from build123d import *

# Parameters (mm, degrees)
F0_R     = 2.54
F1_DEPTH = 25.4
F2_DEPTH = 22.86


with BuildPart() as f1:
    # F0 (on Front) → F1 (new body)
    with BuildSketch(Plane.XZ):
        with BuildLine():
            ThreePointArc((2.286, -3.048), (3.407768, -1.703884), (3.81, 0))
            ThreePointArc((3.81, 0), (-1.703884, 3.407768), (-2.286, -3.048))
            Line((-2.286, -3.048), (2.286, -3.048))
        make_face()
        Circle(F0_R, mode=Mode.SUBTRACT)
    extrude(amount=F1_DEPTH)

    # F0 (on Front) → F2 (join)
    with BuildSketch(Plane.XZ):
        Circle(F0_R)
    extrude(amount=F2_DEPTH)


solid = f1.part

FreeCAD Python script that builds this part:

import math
import FreeCAD as App
import Part
import Sketcher

V = App.Vector
Q = App.Units.Quantity

doc = App.newDocument("Part")
body = doc.addObject("PartDesign::Body", "Body")

sketch1 = body.newObject("Sketcher::SketchObject", "Sketch")
sketch1.AttachmentSupport = (doc.getObject("XZ_Plane"), [""])
sketch1.MapMode = "FlatFace"
sketch1.addGeometry([
    Part.ArcOfCircle(Part.Circle(V(0, 0, 0), V(0, 0, 1), 3.8), math.radians(-53), math.radians(0)),
    Part.ArcOfCircle(Part.Circle(V(0, 0, 0), V(0, 0, 1), 3.8), math.radians(0), math.radians(233)),
    Part.LineSegment(V(-2.3, -3, 0), V(2.3, -3, 0)),
    Part.Circle(V(0, 0, 0), V(0, 0, 1), 2.5),
], False)
sketch1.addConstraint([
    Sketcher.Constraint("Tangent", 0, 2, 1, 1),
    Sketcher.Constraint("Coincident", 1, 2, 2, 1),
    Sketcher.Constraint("Coincident", 2, 2, 0, 1),
    Sketcher.Constraint("Horizontal", 2),
    Sketcher.Constraint("Coincident", 0, 3, -1, 1),
    Sketcher.Constraint("Coincident", 3, 3, -1, 1),
    Sketcher.Constraint("PointOnObject", 0, 2, -1),
    Sketcher.Constraint("Diameter", 3, Q("0.2 in")),
    Sketcher.Constraint("Radius", 0, Q("0.1499998 in")),
    Sketcher.Constraint("Radius", 1, Q("0.15 in")),
    Sketcher.Constraint("DistanceX", 2, 1, 2, 2, Q("0.18 in")),
])
pad1 = body.newObject("PartDesign::Pad", "Pad")
pad1.Profile = sketch1
pad1.Length = Q("1 in")

sketch2 = body.newObject("Sketcher::SketchObject", "Sketch001")
sketch2.AttachmentSupport = (doc.getObject("XZ_Plane"), [""])
sketch2.MapMode = "FlatFace"
sketch2.addGeometry(Part.Circle(V(0, 0, 0), V(0, 0, 1), 2.5), False)
sketch2.addConstraint([
    Sketcher.Constraint("Coincident", 0, 3, -1, 1),
    Sketcher.Constraint("Diameter", 0, Q("0.2 in")),
])
pad2 = body.newObject("PartDesign::Pad", "Pad001")
pad2.Profile = sketch2
pad2.Length = Q("0.9 in")

doc.recompute()
